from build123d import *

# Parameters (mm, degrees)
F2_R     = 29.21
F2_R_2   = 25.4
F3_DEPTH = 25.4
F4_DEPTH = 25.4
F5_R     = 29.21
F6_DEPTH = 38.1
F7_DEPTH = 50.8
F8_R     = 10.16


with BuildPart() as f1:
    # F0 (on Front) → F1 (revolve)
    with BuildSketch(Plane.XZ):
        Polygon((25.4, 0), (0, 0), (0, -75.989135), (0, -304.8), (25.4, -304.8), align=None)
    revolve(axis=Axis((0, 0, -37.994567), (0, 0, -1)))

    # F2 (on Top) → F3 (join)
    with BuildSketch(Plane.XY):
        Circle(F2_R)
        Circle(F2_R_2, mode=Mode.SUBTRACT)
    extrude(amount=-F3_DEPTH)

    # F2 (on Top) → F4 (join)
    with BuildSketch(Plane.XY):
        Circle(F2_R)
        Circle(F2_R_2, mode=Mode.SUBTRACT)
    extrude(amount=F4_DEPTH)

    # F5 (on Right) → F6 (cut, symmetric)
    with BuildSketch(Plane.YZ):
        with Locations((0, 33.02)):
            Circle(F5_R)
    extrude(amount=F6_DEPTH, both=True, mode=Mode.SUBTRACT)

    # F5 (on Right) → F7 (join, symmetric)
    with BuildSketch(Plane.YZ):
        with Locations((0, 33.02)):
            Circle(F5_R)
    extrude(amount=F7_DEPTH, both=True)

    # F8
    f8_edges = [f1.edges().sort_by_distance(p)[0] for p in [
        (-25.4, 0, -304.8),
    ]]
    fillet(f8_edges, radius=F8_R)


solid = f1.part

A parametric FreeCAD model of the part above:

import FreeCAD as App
import Part
import Sketcher
from FreeCAD import Vector
Q = App.Units.Quantity


def edges_at(feature, points):
    """Names of the edges that pass closest to the given points."""
    edges = feature.Shape.Edges
    near = lambda p: min(range(len(edges)), key=lambda i: edges[i].distToShape(Part.Vertex(*p))[0])
    return sorted({f"Edge{near(p) + 1}" for p in points})

doc = App.newDocument("Part")
body = doc.addObject("PartDesign::Body", "Body")

sketch1 = body.newObject("Sketcher::SketchObject", "Sketch")
sketch1.AttachmentSupport = (doc.getObject("XZ_Plane"), [""])
sketch1.MapMode = "FlatFace"
sketch1.addGeometry([
    Part.LineSegment(Vector(25, 0, 0), Vector(0, 0, 0)),
    Part.LineSegment(Vector(0, 0, 0), Vector(0, -305, 0)),
    Part.LineSegment(Vector(0, -305, 0), Vector(25, -305, 0)),
    Part.LineSegment(Vector(25, -305, 0), Vector(25, 0, 0)),
], False)
sketch1.addConstraint([
    Sketcher.Constraint("Coincident", 0, 2, 1, 1),
    Sketcher.Constraint("Coincident", 1, 2, 2, 1),
    Sketcher.Constraint("Coincident", 2, 2, 3, 1),
    Sketcher.Constraint("Coincident", 3, 2, 0, 1),
    Sketcher.Constraint("Horizontal", 0),
    Sketcher.Constraint("Vertical", 1),
    Sketcher.Constraint("Horizontal", 2),
    Sketcher.Constraint("Vertical", 3),
    Sketcher.Constraint("Coincident", 0, 2, -1, 1),
    Sketcher.Constraint("DistanceX", 0, 2, 0, 1, Q("1 in")),
    Sketcher.Constraint("DistanceY", 1, 2, 1, 1, Q("12 in")),
])
revolution = body.newObject("PartDesign::Revolution", "Revolution")
revolution.Profile = sketch1
revolution.ReferenceAxis = (sketch1, ["V_Axis"])
revolution.Angle = 360

sketch2 = body.newObject("Sketcher::SketchObject", "Sketch001")
sketch2.AttachmentSupport = (doc.getObject("XY_Plane"), [""])
sketch2.MapMode = "FlatFace"
sketch2.addGeometry([
    Part.Circle(Vector(0, 0, 0), Vector(0, 0, 1), 29),
    Part.Circle(Vector(0, 0, 0), Vector(0, 0, 1), 25),
], False)
sketch2.addConstraint([
    Sketcher.Constraint("Coincident", 0, 3, -1, 1),
    Sketcher.Constraint("Coincident", 1, 3, -1, 1),
    Sketcher.Constraint("Diameter", 1, Q("2 in")),
    Sketcher.Constraint("Diameter", 0, Q("2.3 in")),
])
pad1 = body.newObject("PartDesign::Pad", "Pad")
pad1.Profile = sketch2
pad1.Length = Q("1 in")
pad1.Reversed = True

sketch3 = body.newObject("Sketcher::SketchObject", "Sketch002")
sketch3.AttachmentSupport = (doc.getObject("XY_Plane"), [""])
sketch3.MapMode = "FlatFace"
sketch3.addGeometry([
    Part.Circle(Vector(0, 0, 0), Vector(0, 0, 1), 29),
    Part.Circle(Vector(0, 0, 0), Vector(0, 0, 1), 25),
], False)
sketch3.addConstraint([
    Sketcher.Constraint("Coincident", 0, 3, -1, 1),
    Sketcher.Constraint("Coincident", 1, 3, -1, 1),
    Sketcher.Constraint("Diameter", 1, Q("2 in")),
    Sketcher.Constraint("Diameter", 0, Q("2.3 in")),
])
pad2 = body.newObject("PartDesign::Pad", "Pad001")
pad2.Profile = sketch3
pad2.Length = Q("1 in")

sketch4 = body.newObject("Sketcher::SketchObject", "Sketch003")
sketch4.AttachmentSupport = (doc.getObject("YZ_Plane"), [""])
sketch4.MapMode = "FlatFace"
sketch4.addGeometry(Part.Circle(Vector(0, 33, 0), Vector(0, 0, 1), 29), False)
sketch4.addConstraint([
    Sketcher.Constraint("PointOnObject", 0, 3, -2),
    Sketcher.Constraint("Diameter", 0, Q("2.3 in")),
    Sketcher.Constraint("DistanceY", -1, 1, 0, 3, Q("1.3 in")),
])
pocket1 = body.newObject("PartDesign::Pocket", "Pocket")
pocket1.Profile = sketch4
pocket1.Length = Q("3 in")
pocket1.Midplane = True

sketch5 = body.newObject("Sketcher::SketchObject", "Sketch004")
sketch5.AttachmentSupport = (doc.getObject("YZ_Plane"), [""])
sketch5.MapMode = "FlatFace"
sketch5.addGeometry(Part.Circle(Vector(0, 33, 0), Vector(0, 0, 1), 29), False)
sketch5.addConstraint([
    Sketcher.Constraint("PointOnObject", 0, 3, -2),
    Sketcher.Constraint("Diameter", 0, Q("2.3 in")),
    Sketcher.Constraint("DistanceY", -1, 1, 0, 3, Q("1.3 in")),
])
pad3 = body.newObject("PartDesign::Pad", "Pad002")
pad3.Profile = sketch5
pad3.Length = Q("4 in")
pad3.Midplane = True
doc.recompute()

fillet = body.newObject("PartDesign::Fillet", "Fillet")
fillet.Base = (pad3, edges_at(pad3, [(-25.4, 0, -304.8)]))
fillet.Radius = Q("0.4 in")

doc.recompute()
